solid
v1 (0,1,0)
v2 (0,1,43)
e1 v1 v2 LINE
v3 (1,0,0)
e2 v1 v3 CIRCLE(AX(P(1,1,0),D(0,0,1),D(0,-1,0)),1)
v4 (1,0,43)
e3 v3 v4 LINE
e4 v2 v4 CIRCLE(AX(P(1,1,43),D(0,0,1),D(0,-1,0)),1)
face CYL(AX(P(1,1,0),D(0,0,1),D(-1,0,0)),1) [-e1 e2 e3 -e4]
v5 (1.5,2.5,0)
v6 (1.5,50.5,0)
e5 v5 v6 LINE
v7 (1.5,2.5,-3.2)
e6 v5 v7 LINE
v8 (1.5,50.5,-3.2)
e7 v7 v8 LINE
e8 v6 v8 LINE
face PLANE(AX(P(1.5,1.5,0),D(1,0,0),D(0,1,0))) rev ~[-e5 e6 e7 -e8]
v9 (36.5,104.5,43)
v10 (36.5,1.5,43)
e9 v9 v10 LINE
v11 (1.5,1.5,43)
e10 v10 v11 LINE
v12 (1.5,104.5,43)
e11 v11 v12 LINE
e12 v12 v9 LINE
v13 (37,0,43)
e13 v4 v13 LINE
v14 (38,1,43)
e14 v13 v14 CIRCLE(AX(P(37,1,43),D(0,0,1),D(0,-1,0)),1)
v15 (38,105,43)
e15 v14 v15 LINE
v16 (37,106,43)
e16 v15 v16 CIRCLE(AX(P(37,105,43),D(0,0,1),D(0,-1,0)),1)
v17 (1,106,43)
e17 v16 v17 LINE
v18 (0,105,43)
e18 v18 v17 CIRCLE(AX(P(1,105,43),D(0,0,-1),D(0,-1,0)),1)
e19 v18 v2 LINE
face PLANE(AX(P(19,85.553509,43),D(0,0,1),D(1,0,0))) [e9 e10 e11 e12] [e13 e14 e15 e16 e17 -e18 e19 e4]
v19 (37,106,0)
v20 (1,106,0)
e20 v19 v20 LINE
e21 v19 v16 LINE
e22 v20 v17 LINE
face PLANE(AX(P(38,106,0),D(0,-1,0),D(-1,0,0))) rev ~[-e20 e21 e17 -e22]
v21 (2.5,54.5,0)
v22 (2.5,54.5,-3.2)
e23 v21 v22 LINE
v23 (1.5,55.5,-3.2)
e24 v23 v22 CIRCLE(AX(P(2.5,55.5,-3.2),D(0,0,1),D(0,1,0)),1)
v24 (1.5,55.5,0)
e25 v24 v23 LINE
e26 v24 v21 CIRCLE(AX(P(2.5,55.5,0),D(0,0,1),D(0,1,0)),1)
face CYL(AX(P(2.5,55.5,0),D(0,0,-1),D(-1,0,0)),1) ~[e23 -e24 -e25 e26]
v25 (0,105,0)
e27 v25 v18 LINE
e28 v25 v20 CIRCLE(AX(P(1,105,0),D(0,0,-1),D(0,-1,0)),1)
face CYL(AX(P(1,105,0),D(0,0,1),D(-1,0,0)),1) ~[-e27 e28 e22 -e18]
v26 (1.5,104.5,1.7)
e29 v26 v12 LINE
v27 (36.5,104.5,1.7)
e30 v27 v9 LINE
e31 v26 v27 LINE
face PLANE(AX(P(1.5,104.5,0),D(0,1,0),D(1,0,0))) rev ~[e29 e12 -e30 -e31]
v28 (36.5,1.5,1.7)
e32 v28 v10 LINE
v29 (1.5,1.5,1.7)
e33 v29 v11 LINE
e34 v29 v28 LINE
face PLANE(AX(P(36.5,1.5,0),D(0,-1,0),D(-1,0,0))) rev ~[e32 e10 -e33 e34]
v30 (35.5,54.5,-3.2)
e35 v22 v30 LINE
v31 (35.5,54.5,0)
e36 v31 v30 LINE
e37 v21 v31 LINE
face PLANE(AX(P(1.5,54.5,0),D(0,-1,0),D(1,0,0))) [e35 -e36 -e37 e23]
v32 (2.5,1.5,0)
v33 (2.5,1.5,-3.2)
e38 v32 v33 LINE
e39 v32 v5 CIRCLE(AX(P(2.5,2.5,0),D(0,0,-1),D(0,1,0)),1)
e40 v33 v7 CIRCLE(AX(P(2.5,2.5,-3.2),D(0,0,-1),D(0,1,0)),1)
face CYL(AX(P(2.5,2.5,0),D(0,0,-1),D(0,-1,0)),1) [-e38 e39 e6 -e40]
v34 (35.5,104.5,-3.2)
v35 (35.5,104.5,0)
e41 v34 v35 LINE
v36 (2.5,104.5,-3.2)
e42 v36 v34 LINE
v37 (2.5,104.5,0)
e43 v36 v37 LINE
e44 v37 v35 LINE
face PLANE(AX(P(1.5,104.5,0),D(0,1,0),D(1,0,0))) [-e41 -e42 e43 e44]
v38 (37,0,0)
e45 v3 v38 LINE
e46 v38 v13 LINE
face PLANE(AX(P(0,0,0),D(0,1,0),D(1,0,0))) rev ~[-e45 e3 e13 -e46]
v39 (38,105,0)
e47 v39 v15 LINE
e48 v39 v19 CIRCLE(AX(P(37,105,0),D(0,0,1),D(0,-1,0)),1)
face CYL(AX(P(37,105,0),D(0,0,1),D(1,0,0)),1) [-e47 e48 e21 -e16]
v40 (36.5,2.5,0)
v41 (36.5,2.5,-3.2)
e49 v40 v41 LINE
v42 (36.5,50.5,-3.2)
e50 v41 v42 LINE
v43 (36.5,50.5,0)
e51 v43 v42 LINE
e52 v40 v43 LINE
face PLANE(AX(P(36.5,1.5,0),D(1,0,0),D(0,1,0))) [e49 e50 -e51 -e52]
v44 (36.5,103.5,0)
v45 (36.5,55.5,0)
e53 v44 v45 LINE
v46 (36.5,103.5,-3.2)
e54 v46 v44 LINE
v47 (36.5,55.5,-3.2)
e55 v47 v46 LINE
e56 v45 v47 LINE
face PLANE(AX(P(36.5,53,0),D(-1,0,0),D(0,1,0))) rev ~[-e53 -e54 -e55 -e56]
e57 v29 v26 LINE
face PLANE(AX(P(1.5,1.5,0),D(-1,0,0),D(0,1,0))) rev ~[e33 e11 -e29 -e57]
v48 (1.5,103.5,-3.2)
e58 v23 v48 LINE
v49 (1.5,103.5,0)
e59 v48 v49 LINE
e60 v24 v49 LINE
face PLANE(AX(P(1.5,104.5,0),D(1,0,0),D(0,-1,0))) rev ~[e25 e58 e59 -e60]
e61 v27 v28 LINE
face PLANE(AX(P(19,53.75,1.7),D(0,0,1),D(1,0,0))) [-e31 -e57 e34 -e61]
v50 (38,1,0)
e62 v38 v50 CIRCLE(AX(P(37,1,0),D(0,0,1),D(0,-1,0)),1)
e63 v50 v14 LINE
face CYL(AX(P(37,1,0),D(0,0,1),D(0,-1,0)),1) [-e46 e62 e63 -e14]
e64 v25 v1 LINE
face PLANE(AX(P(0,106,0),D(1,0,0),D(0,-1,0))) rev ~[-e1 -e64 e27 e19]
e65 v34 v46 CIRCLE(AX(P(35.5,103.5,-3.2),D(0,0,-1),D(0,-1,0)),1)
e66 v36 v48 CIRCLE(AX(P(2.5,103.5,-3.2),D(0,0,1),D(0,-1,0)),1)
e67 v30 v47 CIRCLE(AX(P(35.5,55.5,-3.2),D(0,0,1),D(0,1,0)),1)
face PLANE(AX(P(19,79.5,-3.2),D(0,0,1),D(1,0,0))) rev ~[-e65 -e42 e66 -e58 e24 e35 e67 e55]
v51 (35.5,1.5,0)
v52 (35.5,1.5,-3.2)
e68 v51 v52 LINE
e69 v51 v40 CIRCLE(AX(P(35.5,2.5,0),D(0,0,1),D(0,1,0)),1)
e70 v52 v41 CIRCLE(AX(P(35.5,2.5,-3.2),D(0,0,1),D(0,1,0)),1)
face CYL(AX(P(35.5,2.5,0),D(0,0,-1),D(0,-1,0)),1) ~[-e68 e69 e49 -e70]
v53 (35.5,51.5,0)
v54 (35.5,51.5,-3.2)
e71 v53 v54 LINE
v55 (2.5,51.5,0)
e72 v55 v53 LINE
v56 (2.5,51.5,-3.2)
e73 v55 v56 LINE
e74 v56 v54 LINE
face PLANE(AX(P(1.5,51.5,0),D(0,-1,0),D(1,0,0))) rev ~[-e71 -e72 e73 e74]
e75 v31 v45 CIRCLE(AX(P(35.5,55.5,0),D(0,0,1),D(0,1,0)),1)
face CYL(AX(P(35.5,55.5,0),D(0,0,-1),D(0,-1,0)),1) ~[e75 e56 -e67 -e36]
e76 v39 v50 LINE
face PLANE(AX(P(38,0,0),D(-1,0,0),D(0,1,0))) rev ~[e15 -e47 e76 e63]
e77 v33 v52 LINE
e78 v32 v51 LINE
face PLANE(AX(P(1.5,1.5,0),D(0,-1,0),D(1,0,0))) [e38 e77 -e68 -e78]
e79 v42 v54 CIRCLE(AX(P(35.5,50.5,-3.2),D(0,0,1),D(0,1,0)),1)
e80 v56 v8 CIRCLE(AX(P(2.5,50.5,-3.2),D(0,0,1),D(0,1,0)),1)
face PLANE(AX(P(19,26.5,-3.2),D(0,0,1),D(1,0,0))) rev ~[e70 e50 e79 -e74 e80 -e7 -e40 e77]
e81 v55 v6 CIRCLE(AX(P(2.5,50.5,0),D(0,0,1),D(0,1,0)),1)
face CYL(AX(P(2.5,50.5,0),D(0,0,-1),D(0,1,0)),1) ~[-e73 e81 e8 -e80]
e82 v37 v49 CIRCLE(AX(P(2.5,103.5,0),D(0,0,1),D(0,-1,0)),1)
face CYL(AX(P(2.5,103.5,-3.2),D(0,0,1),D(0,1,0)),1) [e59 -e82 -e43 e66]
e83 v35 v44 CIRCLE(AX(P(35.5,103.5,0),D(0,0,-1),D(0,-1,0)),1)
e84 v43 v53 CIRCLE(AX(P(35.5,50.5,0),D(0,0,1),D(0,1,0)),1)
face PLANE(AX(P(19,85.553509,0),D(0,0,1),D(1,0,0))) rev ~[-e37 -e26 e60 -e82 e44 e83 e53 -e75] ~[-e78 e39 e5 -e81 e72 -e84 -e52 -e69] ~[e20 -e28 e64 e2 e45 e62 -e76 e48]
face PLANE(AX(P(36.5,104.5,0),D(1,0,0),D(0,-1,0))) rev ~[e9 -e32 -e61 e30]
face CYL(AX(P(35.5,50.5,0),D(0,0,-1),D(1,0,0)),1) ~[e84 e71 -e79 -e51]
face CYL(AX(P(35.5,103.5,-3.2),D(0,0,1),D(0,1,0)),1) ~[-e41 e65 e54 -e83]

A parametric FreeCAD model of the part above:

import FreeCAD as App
import Part
import Sketcher
from FreeCAD import Vector


def edges_at(feature, points):
    """Names of the edges that pass closest to the given points."""
    edges = feature.Shape.Edges
    near = lambda p: min(range(len(edges)), key=lambda i: edges[i].distToShape(Part.Vertex(*p))[0])
    return sorted({f"Edge{near(p) + 1}" for p in points})

doc = App.newDocument("Part")
body = doc.addObject("PartDesign::Body", "Body")
body.AllowCompound = True

sketch1 = body.newObject("Sketcher::SketchObject", "Sketch")
sketch1.AttachmentSupport = (doc.getObject("XY_Plane"), [""])
sketch1.MapMode = "FlatFace"
sketch1.addGeometry([
    Part.LineSegment(Vector(2, 104, 0), Vector(2, 54, 0)),
    Part.LineSegment(Vector(2, 54, 0), Vector(36, 54, 0)),
    Part.LineSegment(Vector(36, 54, 0), Vector(36, 104, 0)),
    Part.LineSegment(Vector(36, 104, 0), Vector(2, 104, 0)),
    Part.LineSegment(Vector(2, 52, 0), Vector(2, 2, 0)),
    Part.LineSegment(Vector(2, 2, 0), Vector(36, 2, 0)),
    Part.LineSegment(Vector(36, 2, 0), Vector(36, 52, 0)),
    Part.LineSegment(Vector(36, 52, 0), Vector(2, 52, 0)),
], False)
sketch1.addConstraint([
    Sketcher.Constraint("Coincident", 0, 2, 1, 1),
    Sketcher.Constraint("Coincident", 1, 2, 2, 1),
    Sketcher.Constraint("Coincident", 2, 2, 3, 1),
    Sketcher.Constraint("Coincident", 3, 2, 0, 1),
    Sketcher.Constraint("Coincident", 4, 2, 5, 1),
    Sketcher.Constraint("Coincident", 5, 2, 6, 1),
    Sketcher.Constraint("Coincident", 6, 2, 7, 1),
    Sketcher.Constraint("Coincident", 7, 2, 4, 1),
    Sketcher.Constraint("Vertical", 0),
    Sketcher.Constraint("Horizontal", 1),
    Sketcher.Constraint("Vertical", 2),
    Sketcher.Constraint("Horizontal", 3),
    Sketcher.Constraint("Vertical", 4),
    Sketcher.Constraint("Horizontal", 5),
    Sketcher.Constraint("Vertical", 6),
    Sketcher.Constraint("Horizontal", 7),
    Sketcher.Constraint("Vertical", 3, 2, 4, 2),
    Sketcher.Constraint("Vertical", 2, 2, 5, 2),
    Sketcher.Constraint("Equal", 2, 4),
    Sketcher.Constraint("DistanceX", 1, 1, 1, 2, 35.0),
    Sketcher.Constraint("DistanceY", 0, 2, 0, 1, 50.0),
    Sketcher.Constraint("DistanceY", 4, 2, 0, 2, 53.0),
    Sketcher.Constraint("DistanceX", -1, 1, 0, 2, 1.5),
    Sketcher.Constraint("DistanceY", -1, 1, 0, 2, 54.5),
])
pad1 = body.newObject("PartDesign::Pad", "Pad")
pad1.Profile = sketch1
pad1.Length = 3.2
pad1.Reversed = True

sketch2 = body.newObject("Sketcher::SketchObject", "Sketch001")
sketch2.AttachmentSupport = (doc.getObject("XY_Plane"), [""])
sketch2.MapMode = "FlatFace"
sketch2.addGeometry([
    Part.LineSegment(Vector(36.5, 53, 0), Vector(36.5, 104.5, 0)),
    Part.LineSegment(Vector(36.5, 104.5, 0), Vector(1.5, 104.5, 0)),
    Part.LineSegment(Vector(1.5, 104.5, 0), Vector(1.5, 53, 0)),
    Part.LineSegment(Vector(1.5, 53, 0), Vector(0, 53, 0)),
    Part.LineSegment(Vector(0, 53, 0), Vector(0, 0, 0)),
    Part.LineSegment(Vector(0, 0, 0), Vector(38, 0, 0)),
    Part.LineSegment(Vector(38, 0, 0), Vector(38, 53, 0)),
    Part.LineSegment(Vector(38, 53, 0), Vector(36.5, 53, 0)),
], False)
sketch2.addConstraint([
    Sketcher.Constraint("Coincident", 0, 2, 1, 1),
    Sketcher.Constraint("Coincident", 1, 2, 2, 1),
    Sketcher.Constraint("Coincident", 2, 2, 3, 1),
    Sketcher.Constraint("Coincident", 3, 2, 4, 1),
    Sketcher.Constraint("Coincident", 4, 2, 5, 1),
    Sketcher.Constraint("Coincident", 5, 2, 6, 1),
    Sketcher.Constraint("Coincident", 6, 2, 7, 1),
    Sketcher.Constraint("Coincident", 7, 2, 0, 1),
    Sketcher.Constraint("Vertical", 0),
    Sketcher.Constraint("Horizontal", 1),
    Sketcher.Constraint("Vertical", 2),
    Sketcher.Constraint("Horizontal", 3),
    Sketcher.Constraint("Vertical", 4),
    Sketcher.Constraint("Horizontal", 5),
    Sketcher.Constraint("Vertical", 6),
    Sketcher.Constraint("Horizontal", 7),
    Sketcher.Constraint("Coincident", 4, 2, -1, 1),
    Sketcher.Constraint("Horizontal", 3, 2, 6, 2),
    Sketcher.Constraint("Equal", 3, 7),
    Sketcher.Constraint("DistanceX", 1, 2, 1, 1, 35.0),
    Sketcher.Constraint("DistanceX", 5, 1, 5, 2, 38.0),
    Sketcher.Constraint("DistanceY", 4, 2, 4, 1, 53.0),
    Sketcher.Constraint("DistanceY", 0, 1, 0, 2, 51.5),
])
pad2 = body.newObject("PartDesign::Pad", "Pad001")
pad2.Profile = sketch2
pad2.Length = 1.7

sketch3 = body.newObject("Sketcher::SketchObject", "Sketch002")
sketch3.AttachmentSupport = (doc.getObject("XY_Plane"), [""])
sketch3.MapMode = "FlatFace"
sketch3.addGeometry([
    Part.LineSegment(Vector(0, 106, 0), Vector(0, 0, 0)),
    Part.LineSegment(Vector(0, 0, 0), Vector(38, 0, 0)),
    Part.LineSegment(Vector(38, 0, 0), Vector(38, 106, 0)),
    Part.LineSegment(Vector(38, 106, 0), Vector(0, 106, 0)),
    Part.LineSegment(Vector(2, 104, 0), Vector(36, 104, 0)),
    Part.LineSegment(Vector(36, 104, 0), Vector(36, 2, 0)),
    Part.LineSegment(Vector(36, 2, 0), Vector(2, 2, 0)),
    Part.LineSegment(Vector(2, 2, 0), Vector(2, 104, 0)),
], False)
sketch3.addConstraint([
    Sketcher.Constraint("Coincident", 0, 2, 1, 1),
    Sketcher.Constraint("Coincident", 1, 2, 2, 1),
    Sketcher.Constraint("Coincident", 2, 2, 3, 1),
    Sketcher.Constraint("Coincident", 3, 2, 0, 1),
    Sketcher.Constraint("Coincident", 4, 2, 5, 1),
    Sketcher.Constraint("Coincident", 5, 2, 6, 1),
    Sketcher.Constraint("Coincident", 6, 2, 7, 1),
    Sketcher.Constraint("Coincident", 7, 2, 4, 1),
    Sketcher.Constraint("Vertical", 0),
    Sketcher.Constraint("Horizontal", 1),
    Sketcher.Constraint("Vertical", 2),
    Sketcher.Constraint("Horizontal", 3),
    Sketcher.Constraint("Horizontal", 4),
    Sketcher.Constraint("Vertical", 5),
    Sketcher.Constraint("Horizontal", 6),
    Sketcher.Constraint("Vertical", 7),
    Sketcher.Constraint("Coincident", 0, 2, -1, 1),
    Sketcher.Constraint("DistanceX", 1, 1, 1, 2, 38.0),
    Sketcher.Constraint("DistanceX", 4, 1, 4, 2, 35.0),
    Sketcher.Constraint("DistanceY", 0, 2, 0, 1, 106.0),
    Sketcher.Constraint("DistanceY", 5, 2, 5, 1, 103.0),
    Sketcher.Constraint("DistanceX", -1, 1, 4, 2, 36.5),
    Sketcher.Constraint("DistanceY", -1, 1, 4, 2, 104.5),
])
pad3 = body.newObject("PartDesign::Pad", "Pad002")
pad3.Profile = sketch3
pad3.Length = 43
doc.recompute()

fillet = body.newObject("PartDesign::Fillet", "Fillet")
fillet.Base = (pad3, edges_at(pad3, [
    (0, 0, 21.5),
    (38, 0, 21.5),
    (38, 106, 21.5),
    (0, 106, 21.5),
    (1.5, 104.5, -1.6),
    (36.5, 104.5, -1.6),
    (36.5, 54.5, -1.6),
    (1.5, 54.5, -1.6),
    (1.5, 51.5, -1.6),
    (36.5, 51.5, -1.6),
    (36.5, 1.5, -1.6),
    (1.5, 1.5, -1.6),
]))
fillet.Radius = 1

doc.recompute()
